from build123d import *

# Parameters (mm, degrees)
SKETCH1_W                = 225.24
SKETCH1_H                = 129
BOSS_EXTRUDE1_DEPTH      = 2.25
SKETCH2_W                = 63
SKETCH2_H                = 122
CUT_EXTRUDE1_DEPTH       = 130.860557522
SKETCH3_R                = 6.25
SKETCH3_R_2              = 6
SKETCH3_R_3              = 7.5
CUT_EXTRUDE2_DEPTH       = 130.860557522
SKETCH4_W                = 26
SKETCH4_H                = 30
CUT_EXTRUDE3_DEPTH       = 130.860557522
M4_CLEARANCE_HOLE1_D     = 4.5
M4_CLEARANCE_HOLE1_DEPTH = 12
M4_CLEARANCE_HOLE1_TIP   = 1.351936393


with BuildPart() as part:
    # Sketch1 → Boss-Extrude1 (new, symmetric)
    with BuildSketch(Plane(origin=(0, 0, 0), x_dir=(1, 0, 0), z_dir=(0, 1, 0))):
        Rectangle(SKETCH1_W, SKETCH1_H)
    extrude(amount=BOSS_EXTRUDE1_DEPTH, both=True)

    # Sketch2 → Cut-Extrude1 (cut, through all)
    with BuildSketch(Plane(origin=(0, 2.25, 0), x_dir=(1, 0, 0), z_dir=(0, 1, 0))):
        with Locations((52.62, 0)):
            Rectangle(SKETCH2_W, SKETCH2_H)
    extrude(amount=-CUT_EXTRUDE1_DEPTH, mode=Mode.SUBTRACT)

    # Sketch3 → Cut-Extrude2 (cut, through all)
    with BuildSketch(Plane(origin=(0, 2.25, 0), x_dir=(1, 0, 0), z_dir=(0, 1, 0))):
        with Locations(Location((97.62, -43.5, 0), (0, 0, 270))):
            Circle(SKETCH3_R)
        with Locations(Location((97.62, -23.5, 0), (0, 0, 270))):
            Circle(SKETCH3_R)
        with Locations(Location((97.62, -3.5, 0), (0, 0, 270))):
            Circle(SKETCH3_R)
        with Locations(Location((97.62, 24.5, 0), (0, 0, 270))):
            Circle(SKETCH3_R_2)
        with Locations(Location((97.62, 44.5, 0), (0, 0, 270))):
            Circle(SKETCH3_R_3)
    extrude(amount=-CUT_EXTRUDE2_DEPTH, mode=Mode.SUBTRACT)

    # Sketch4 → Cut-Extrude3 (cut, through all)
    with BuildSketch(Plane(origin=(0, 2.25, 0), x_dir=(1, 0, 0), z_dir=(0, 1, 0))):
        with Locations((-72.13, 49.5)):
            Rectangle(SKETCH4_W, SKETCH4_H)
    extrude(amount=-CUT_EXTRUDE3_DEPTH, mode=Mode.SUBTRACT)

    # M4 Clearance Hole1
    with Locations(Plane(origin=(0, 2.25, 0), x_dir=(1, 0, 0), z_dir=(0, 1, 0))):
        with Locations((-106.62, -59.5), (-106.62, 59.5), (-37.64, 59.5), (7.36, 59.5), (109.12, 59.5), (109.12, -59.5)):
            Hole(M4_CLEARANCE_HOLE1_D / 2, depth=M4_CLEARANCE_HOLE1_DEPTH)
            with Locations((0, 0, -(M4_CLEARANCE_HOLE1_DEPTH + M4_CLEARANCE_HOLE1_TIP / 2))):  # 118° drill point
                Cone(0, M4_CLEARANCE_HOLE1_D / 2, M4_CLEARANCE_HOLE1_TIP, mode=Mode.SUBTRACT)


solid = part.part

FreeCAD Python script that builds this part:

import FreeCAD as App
import Part
import Sketcher


def add_polygon(sketch, points):
    """Adds a closed chain of lines whose ends are joined by coincident constraints."""
    first, n = sketch.GeometryCount, len(points)
    for a, b in zip(points, points[1:] + points[:1]):
        sketch.addGeometry(Part.LineSegment(App.Vector(*a, 0), App.Vector(*b, 0)), False)
    for i in range(n):
        sketch.addConstraint(Sketcher.Constraint("Coincident", first + i, 2, first + (i + 1) % n, 1))

doc = App.newDocument("Part")
body = doc.addObject("PartDesign::Body", "Body")

# Sketch on XZ plane
sketch1 = doc.addObject("Sketcher::SketchObject", "Sketch")
body.addObject(sketch1)
sketch1.AttachmentSupport = (doc.XZ_Plane, [""])
sketch1.MapMode = "FlatFace"
add_polygon(sketch1, [(-113, -64), (-113, 64), (113, 64), (113, -64)])  # lines 0-3
sketch1.addConstraint([
    Sketcher.Constraint("Vertical", 0),
    Sketcher.Constraint("Horizontal", 1),
    Sketcher.Constraint("Vertical", 2),
    Sketcher.Constraint("Horizontal", 3),
    Sketcher.Constraint("Symmetric", 0, 2, 2, 2, -1, 1),
    Sketcher.Constraint("DistanceY", 0, 1, 0, 2, 129.0),
    Sketcher.Constraint("DistanceX", 1, 1, 1, 2, 225.24),
])
pad1 = doc.addObject("PartDesign::Pad", "Pad")
body.addObject(pad1)
pad1.Profile = sketch1
pad1.Length = 4.5
pad1.Midplane = True

# Sketch on XZ plane
sketch2 = doc.addObject("Sketcher::SketchObject", "Sketch001")
body.addObject(sketch2)
sketch2.AttachmentSupport = (doc.XZ_Plane, [""])
sketch2.MapMode = "FlatFace"
sketch2.AttachmentOffset = App.Placement(App.Vector(0, 0, -2.25), App.Rotation())
add_polygon(sketch2, [(21, -61), (21, 61), (84, 61), (84, -61)])  # lines 0-3
sketch2.addConstraint([
    Sketcher.Constraint("Vertical", 0),
    Sketcher.Constraint("Horizontal", 1),
    Sketcher.Constraint("Vertical", 2),
    Sketcher.Constraint("Horizontal", 3),
    Sketcher.Constraint("DistanceX", 1, 1, 1, 2, 63.0),
    Sketcher.Constraint("DistanceY", 0, 1, 0, 2, 122.0),
    Sketcher.Constraint("DistanceY", -1, 1, 0, 2, 61.0),
    Sketcher.Constraint("DistanceX", -1, 1, 0, 2, 21.12),
])
pocket1 = doc.addObject("PartDesign::Pocket", "Pocket")
body.addObject(pocket1)
pocket1.Profile = sketch2
pocket1.Type = "ThroughAll"
pocket1.Reversed = True

# Sketch on XZ plane
sketch3 = doc.addObject("Sketcher::SketchObject", "Sketch002")
body.addObject(sketch3)
sketch3.AttachmentSupport = (doc.XZ_Plane, [""])
sketch3.MapMode = "FlatFace"
sketch3.AttachmentOffset = App.Placement(App.Vector(0, 0, -2.25), App.Rotation())
sketch3.addGeometry([
    Part.Circle(App.Vector(98, 44, 0), App.Vector(0, 0, 1), 6),  # 0
    Part.Circle(App.Vector(98, 24, 0), App.Vector(0, 0, 1), 6),  # 1
    Part.Circle(App.Vector(98, 4, 0), App.Vector(0, 0, 1), 6),  # 2
    Part.Circle(App.Vector(98, -24, 0), App.Vector(0, 0, 1), 6),  # 3
    Part.Circle(App.Vector(98, -44, 0), App.Vector(0, 0, 1), 8),  # 4
], False)
sketch3.addConstraint([
    Sketcher.Constraint("Equal", 0, 1),
    Sketcher.Constraint("Equal", 1, 2),
    Sketcher.Constraint("Vertical", 0, 3, 1, 3),
    Sketcher.Constraint("Vertical", 1, 3, 2, 3),
    Sketcher.Constraint("Vertical", 2, 3, 3, 3),
    Sketcher.Constraint("Vertical", 3, 3, 4, 3),
    Sketcher.Constraint("Diameter", 3, 12.0),
    Sketcher.Constraint("Diameter", 4, 15.0),
    Sketcher.Constraint("Diameter", 0, 12.5),
    Sketcher.Constraint("DistanceY", 1, 3, 0, 3, 20.0),
    Sketcher.Constraint("DistanceY", 2, 3, 1, 3, 20.0),
    Sketcher.Constraint("DistanceY", 3, 3, 2, 3, 28.0),
    Sketcher.Constraint("DistanceY", 4, 3, 3, 3, 20.0),
    Sketcher.Constraint("DistanceY", -1, 1, 0, 3, 43.5),
    Sketcher.Constraint("DistanceX", -1, 1, 0, 3, 97.62),
])
pocket2 = doc.addObject("PartDesign::Pocket", "Pocket001")
body.addObject(pocket2)
pocket2.Profile = sketch3
pocket2.Type = "ThroughAll"
pocket2.Reversed = True

# Sketch on XZ plane
sketch4 = doc.addObject("Sketcher::SketchObject", "Sketch003")
body.addObject(sketch4)
sketch4.AttachmentSupport = (doc.XZ_Plane, [""])
sketch4.MapMode = "FlatFace"
sketch4.AttachmentOffset = App.Placement(App.Vector(0, 0, -2.25), App.Rotation())
add_polygon(sketch4, [(-85, -64), (-85, -34), (-59, -34), (-59, -64)])  # lines 0-3
sketch4.addConstraint([
    Sketcher.Constraint("Vertical", 0),
    Sketcher.Constraint("Horizontal", 1),
    Sketcher.Constraint("Vertical", 2),
    Sketcher.Constraint("Horizontal", 3),
    Sketcher.Constraint("DistanceX", 1, 1, 1, 2, 26.0),
    Sketcher.Constraint("DistanceY", 0, 1, 0, 2, 30.0),
    Sketcher.Constraint("DistanceY", 0, 2, -1, 1, 34.5),
    Sketcher.Constraint("DistanceX", 0, 2, -1, 1, 85.13),
])
pocket3 = doc.addObject("PartDesign::Pocket", "Pocket002")
body.addObject(pocket3)
pocket3.Profile = sketch4
pocket3.Type = "ThroughAll"
pocket3.Reversed = True

# Sketch on XZ plane
sketch5 = doc.addObject("Sketcher::SketchObject", "Sketch004")
body.addObject(sketch5)
sketch5.AttachmentSupport = (doc.XZ_Plane, [""])
sketch5.MapMode = "FlatFace"
sketch5.AttachmentOffset = App.Placement(App.Vector(0, 0, -2.25), App.Rotation())
sketch5.addGeometry([
    Part.Circle(App.Vector(-106.6, 59.5, 0), App.Vector(0, 0, 1), 2.2),  # 0
    Part.Circle(App.Vector(-106.6, -59.5, 0), App.Vector(0, 0, 1), 2.2),  # 1
    Part.Circle(App.Vector(-37.6, -59.5, 0), App.Vector(0, 0, 1), 2.2),  # 2
    Part.Circle(App.Vector(7.4, -59.5, 0), App.Vector(0, 0, 1), 2.2),  # 3
    Part.Circle(App.Vector(109.1, -59.5, 0), App.Vector(0, 0, 1), 2.2),  # 4
    Part.Circle(App.Vector(109.1, 59.5, 0), App.Vector(0, 0, 1), 2.2),  # 5
], False)
sketch5.addConstraint([
    Sketcher.Constraint("Equal", 0, 1),
    Sketcher.Constraint("Equal", 1, 2),
    Sketcher.Constraint("Equal", 2, 3),
    Sketcher.Constraint("Equal", 3, 4),
    Sketcher.Constraint("Equal", 4, 5),
    Sketcher.Constraint("Symmetric", 0, 3, 1, 3, -1),
    Sketcher.Constraint("Symmetric", 4, 3, 5, 3, -1),
    Sketcher.Constraint("Horizontal", 1, 3, 2, 3),
    Sketcher.Constraint("Horizontal", 2, 3, 3, 3),
    Sketcher.Constraint("Horizontal", 3, 3, 4, 3),
    Sketcher.Constraint("Diameter", 0, 4.5),
    Sketcher.Constraint("DistanceY", 1, 3, 0, 3, 119.0),
    Sketcher.Constraint("DistanceX", 2, 3, 3, 3, 45.0),
    Sketcher.Constraint("DistanceX", 0, 3, -1, 1, 106.62),
    Sketcher.Constraint("DistanceX", 2, 3, -1, 1, 37.64),
    Sketcher.Constraint("DistanceX", -1, 1, 4, 3, 109.12),
])
doc.recompute()
hole = doc.addObject("PartDesign::Hole", "Hole")
body.addObject(hole)
hole.Profile = sketch5
hole.ThreadType = "None"
hole.Diameter = 4.5
hole.DepthType = "Dimension"
hole.Depth = 12
hole.DrillPoint = "Angled"
hole.DrillPointAngle = 118
hole.Reversed = True

doc.recompute()
